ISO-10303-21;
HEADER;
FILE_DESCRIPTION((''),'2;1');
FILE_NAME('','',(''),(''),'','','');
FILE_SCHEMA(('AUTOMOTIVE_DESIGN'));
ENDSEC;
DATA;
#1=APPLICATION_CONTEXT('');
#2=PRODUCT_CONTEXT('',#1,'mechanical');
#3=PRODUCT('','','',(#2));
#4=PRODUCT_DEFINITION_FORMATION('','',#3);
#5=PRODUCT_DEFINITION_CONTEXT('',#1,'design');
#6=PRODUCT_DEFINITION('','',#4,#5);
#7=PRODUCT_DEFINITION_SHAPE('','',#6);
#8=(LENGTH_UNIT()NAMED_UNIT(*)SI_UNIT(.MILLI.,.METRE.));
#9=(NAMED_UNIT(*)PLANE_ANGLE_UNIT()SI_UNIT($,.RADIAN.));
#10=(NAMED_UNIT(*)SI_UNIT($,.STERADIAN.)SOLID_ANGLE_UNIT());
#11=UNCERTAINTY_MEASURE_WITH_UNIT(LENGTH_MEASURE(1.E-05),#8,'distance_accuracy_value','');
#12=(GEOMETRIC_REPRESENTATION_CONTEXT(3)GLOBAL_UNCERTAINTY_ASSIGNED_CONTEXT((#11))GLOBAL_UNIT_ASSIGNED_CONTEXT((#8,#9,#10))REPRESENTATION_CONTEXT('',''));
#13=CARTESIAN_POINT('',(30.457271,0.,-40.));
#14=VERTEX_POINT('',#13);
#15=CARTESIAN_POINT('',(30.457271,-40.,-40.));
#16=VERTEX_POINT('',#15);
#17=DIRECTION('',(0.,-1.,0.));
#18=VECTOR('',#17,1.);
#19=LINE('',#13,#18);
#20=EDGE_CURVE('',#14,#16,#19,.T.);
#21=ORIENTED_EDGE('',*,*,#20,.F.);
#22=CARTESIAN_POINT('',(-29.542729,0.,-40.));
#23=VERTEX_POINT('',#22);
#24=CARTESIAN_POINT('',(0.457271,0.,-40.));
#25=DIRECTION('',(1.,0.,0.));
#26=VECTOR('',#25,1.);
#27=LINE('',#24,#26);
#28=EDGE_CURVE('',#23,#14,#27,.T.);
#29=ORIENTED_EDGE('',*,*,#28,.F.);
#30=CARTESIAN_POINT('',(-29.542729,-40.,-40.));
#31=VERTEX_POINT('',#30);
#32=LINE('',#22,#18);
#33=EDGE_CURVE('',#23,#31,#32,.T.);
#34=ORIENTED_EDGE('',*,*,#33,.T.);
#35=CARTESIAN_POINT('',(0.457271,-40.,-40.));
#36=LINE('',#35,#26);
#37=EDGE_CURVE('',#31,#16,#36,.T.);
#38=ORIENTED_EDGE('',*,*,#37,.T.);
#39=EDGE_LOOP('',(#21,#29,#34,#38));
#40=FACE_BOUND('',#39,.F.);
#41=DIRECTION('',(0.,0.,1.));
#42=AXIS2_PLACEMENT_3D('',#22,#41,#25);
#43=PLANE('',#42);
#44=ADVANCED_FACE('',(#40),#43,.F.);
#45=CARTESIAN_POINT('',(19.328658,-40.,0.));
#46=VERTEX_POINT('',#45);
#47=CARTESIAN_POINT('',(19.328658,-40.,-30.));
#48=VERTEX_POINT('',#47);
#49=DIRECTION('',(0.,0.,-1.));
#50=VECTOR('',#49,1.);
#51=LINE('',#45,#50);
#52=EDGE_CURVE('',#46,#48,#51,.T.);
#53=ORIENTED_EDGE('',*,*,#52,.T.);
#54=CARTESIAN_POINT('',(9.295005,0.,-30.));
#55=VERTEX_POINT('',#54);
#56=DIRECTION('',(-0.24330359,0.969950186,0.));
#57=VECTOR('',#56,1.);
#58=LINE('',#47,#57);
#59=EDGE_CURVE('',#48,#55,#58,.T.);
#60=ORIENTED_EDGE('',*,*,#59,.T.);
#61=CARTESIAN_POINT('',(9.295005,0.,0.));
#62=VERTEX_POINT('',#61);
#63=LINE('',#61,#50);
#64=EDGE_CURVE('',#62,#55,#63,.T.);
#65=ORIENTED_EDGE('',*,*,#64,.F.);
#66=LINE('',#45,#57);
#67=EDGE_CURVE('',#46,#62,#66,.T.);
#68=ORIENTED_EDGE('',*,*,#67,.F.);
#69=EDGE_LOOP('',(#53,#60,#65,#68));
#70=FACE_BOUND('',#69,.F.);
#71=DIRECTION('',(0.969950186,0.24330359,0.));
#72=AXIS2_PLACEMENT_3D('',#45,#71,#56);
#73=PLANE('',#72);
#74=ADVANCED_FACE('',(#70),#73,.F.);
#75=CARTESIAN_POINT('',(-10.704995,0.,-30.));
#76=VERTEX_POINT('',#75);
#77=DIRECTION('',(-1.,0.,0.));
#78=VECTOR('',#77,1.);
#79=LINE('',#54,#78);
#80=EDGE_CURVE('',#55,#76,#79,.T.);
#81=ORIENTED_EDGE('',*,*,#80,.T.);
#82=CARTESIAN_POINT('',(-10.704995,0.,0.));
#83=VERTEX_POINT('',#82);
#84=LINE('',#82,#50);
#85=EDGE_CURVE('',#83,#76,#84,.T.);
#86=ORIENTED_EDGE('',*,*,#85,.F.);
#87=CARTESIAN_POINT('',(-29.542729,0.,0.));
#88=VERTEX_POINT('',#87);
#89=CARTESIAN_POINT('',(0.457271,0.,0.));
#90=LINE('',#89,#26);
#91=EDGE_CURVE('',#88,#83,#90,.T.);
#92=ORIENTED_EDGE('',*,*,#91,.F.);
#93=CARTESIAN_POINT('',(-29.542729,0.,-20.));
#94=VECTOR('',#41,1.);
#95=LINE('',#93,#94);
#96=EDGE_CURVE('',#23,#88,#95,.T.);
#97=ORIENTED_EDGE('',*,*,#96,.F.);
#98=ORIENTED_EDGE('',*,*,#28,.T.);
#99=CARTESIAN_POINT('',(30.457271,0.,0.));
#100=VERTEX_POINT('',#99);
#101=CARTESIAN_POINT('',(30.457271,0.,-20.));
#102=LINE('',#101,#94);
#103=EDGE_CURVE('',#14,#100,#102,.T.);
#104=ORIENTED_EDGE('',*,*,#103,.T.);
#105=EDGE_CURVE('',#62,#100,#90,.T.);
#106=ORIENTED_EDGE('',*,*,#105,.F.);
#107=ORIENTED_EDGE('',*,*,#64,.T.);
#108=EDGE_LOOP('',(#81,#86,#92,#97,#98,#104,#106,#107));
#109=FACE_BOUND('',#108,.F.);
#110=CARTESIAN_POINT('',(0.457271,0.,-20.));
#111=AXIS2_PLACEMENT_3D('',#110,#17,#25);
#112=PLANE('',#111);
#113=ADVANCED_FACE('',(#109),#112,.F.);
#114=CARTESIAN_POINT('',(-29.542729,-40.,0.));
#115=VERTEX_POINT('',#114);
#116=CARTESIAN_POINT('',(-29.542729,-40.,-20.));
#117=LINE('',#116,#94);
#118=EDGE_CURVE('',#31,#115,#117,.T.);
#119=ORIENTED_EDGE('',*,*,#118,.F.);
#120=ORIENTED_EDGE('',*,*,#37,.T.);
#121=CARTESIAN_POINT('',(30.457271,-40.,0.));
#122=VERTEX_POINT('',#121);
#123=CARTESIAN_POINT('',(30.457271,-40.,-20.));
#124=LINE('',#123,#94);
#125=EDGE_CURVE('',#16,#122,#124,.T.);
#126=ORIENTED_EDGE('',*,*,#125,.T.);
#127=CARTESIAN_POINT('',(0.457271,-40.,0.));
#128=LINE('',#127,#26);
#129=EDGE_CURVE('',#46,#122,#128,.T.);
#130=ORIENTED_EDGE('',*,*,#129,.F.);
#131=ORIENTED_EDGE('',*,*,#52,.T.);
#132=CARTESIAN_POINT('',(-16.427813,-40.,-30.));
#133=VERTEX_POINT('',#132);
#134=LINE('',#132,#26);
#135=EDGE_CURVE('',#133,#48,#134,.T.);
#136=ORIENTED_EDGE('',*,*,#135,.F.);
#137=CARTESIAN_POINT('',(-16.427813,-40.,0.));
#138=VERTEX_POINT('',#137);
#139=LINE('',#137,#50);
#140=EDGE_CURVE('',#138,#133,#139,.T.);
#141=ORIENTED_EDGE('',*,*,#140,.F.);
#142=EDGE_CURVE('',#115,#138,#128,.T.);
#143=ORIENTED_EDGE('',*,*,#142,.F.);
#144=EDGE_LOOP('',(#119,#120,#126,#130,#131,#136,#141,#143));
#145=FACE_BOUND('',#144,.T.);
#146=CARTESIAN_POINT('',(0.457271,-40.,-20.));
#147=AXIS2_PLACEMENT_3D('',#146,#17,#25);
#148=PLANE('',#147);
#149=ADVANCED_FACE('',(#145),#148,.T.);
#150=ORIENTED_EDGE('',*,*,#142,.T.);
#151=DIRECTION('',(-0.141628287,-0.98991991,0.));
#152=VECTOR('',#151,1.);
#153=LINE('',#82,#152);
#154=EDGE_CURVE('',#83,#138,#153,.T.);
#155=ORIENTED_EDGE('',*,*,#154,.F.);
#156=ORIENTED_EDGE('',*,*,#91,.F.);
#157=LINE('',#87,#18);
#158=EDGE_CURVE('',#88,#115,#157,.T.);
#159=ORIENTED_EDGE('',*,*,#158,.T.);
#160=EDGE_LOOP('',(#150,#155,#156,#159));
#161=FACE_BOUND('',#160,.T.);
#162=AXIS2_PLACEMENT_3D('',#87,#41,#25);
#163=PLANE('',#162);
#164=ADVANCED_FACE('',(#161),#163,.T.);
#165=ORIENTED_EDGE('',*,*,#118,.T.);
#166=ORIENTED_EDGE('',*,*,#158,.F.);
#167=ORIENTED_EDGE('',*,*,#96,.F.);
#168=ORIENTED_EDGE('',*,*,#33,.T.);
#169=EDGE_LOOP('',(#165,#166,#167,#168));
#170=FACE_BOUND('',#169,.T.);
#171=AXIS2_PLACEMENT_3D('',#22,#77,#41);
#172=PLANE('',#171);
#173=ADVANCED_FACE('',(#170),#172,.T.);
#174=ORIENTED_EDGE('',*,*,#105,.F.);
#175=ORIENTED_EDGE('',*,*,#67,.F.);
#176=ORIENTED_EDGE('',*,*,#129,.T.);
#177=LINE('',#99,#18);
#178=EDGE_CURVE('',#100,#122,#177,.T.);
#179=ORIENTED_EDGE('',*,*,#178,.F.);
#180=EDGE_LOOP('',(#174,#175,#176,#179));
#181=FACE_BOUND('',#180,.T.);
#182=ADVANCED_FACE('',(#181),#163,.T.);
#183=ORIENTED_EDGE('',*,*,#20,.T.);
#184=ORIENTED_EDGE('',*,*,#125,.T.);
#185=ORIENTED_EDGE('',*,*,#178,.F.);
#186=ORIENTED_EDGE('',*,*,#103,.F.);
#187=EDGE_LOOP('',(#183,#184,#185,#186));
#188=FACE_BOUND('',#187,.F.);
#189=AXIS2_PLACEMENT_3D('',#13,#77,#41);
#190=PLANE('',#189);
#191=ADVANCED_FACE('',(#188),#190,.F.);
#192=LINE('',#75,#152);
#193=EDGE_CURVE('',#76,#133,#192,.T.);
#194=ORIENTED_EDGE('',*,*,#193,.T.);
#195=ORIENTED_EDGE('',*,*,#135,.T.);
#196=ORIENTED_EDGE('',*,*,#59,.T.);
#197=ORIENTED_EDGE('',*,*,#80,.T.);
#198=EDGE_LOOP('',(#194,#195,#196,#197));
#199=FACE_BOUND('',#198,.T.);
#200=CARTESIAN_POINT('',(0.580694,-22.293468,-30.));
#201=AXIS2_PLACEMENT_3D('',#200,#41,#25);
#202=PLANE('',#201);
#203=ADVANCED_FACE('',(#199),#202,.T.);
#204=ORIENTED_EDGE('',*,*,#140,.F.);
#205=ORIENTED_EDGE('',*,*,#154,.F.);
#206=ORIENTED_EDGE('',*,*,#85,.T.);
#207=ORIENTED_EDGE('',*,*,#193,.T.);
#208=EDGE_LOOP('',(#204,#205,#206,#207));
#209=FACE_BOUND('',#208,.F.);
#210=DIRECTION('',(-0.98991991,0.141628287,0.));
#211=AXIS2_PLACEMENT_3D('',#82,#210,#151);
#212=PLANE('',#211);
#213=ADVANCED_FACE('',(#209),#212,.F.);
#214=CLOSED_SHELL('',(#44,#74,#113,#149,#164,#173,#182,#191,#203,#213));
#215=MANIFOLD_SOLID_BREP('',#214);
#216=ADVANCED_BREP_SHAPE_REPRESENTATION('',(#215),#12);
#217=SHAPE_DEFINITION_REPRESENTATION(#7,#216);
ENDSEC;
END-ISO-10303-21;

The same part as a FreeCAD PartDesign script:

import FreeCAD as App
import Part
import Sketcher

doc = App.newDocument("Part")
params = doc.addObject("Spreadsheet::Sheet", "Params")
for row, (alias, value) in enumerate([
    ("sketch1_width", "60 mm"),
    ("sketch1_height", "40 mm"),
    ("pad1_length", "40 mm"),
    ("sketch2_width", "20 mm"),
    ("pocket1_length", "30 mm"),
], start=1):
    params.set(f"A{row}", alias)
    params.set(f"B{row}", "=" + value)
    params.setAlias(f"B{row}", alias)

body = doc.addObject("PartDesign::Body", "Body")

# Sketch on XZ plane
sketch1 = body.newObject("Sketcher::SketchObject", "Sketch")
sketch1.AttachmentSupport = (doc.getObject("XZ_Plane"), [""])
sketch1.MapMode = "FlatFace"
sketch1.addGeometry([
    Part.LineSegment(App.Vector(-30, 0, 0), App.Vector(-30, -40, 0)),
    Part.LineSegment(App.Vector(-30, -40, 0), App.Vector(30, -40, 0)),
    Part.LineSegment(App.Vector(30, -40, 0), App.Vector(30, 0, 0)),
    Part.LineSegment(App.Vector(30, 0, 0), App.Vector(-30, 0, 0)),
], False)
sketch1.addConstraint([
    Sketcher.Constraint("Coincident", 0, 2, 1, 1),
    Sketcher.Constraint("Coincident", 1, 2, 2, 1),
    Sketcher.Constraint("Coincident", 2, 2, 3, 1),
    Sketcher.Constraint("Coincident", 3, 2, 0, 1),
    Sketcher.Constraint("Vertical", 0),
    Sketcher.Constraint("Horizontal", 1),
    Sketcher.Constraint("Vertical", 2),
    Sketcher.Constraint("Horizontal", 3),
    Sketcher.Constraint("PointOnObject", 2, 2, -1),
    Sketcher.Constraint("DistanceX", 1, 1, 1, 2, 60.0),
    Sketcher.Constraint("DistanceY", 0, 2, 0, 1, 40.0),
    Sketcher.Constraint("DistanceX", 0, 2, -1, 1, 29.542729),
])
sketch1.setExpression("Constraints[9]", "Params.sketch1_width")
sketch1.setExpression("Constraints[10]", "Params.sketch1_height")
pad1 = body.newObject("PartDesign::Pad", "Pad")
pad1.Profile = sketch1
pad1.setExpression("Length", "Params.pad1_length")

# Sketch on XY plane
sketch2 = body.newObject("Sketcher::SketchObject", "Sketch001")
sketch2.AttachmentSupport = (doc.getObject("XY_Plane"), [""])
sketch2.MapMode = "FlatFace"
sketch2.addGeometry([
    Part.LineSegment(App.Vector(9, 0, 0), App.Vector(-11, 0, 0)),
    Part.LineSegment(App.Vector(-11, 0, 0), App.Vector(-16, -40, 0)),
    Part.LineSegment(App.Vector(-16, -40, 0), App.Vector(19, -40, 0)),
    Part.LineSegment(App.Vector(19, -40, 0), App.Vector(9, 0, 0)),
], False)
sketch2.addConstraint([
    Sketcher.Constraint("Coincident", 0, 2, 1, 1),
    Sketcher.Constraint("Coincident", 1, 2, 2, 1),
    Sketcher.Constraint("Coincident", 2, 2, 3, 1),
    Sketcher.Constraint("Coincident", 3, 2, 0, 1),
    Sketcher.Constraint("Horizontal", 0),
    Sketcher.Constraint("Horizontal", 2),
    Sketcher.Constraint("PointOnObject", 0, 2, -1),
    Sketcher.Constraint("DistanceX", 0, 2, 0, 1, 20.0),
    Sketcher.Constraint("DistanceY", 1, 2, -1, 1, 40.0),
    Sketcher.Constraint("DistanceX", 2, 1, 2, 2, 35.756471),
    Sketcher.Constraint("Distance", 1, 40.407309),
    Sketcher.Constraint("DistanceX", -1, 1, 2, 2, 19.328658),
])
sketch2.setExpression("Constraints[7]", "Params.sketch2_width")
pocket1 = body.newObject("PartDesign::Pocket", "Pocket")
pocket1.Profile = sketch2
pocket1.setExpression("Length", "Params.pocket1_length")

doc.recompute()
